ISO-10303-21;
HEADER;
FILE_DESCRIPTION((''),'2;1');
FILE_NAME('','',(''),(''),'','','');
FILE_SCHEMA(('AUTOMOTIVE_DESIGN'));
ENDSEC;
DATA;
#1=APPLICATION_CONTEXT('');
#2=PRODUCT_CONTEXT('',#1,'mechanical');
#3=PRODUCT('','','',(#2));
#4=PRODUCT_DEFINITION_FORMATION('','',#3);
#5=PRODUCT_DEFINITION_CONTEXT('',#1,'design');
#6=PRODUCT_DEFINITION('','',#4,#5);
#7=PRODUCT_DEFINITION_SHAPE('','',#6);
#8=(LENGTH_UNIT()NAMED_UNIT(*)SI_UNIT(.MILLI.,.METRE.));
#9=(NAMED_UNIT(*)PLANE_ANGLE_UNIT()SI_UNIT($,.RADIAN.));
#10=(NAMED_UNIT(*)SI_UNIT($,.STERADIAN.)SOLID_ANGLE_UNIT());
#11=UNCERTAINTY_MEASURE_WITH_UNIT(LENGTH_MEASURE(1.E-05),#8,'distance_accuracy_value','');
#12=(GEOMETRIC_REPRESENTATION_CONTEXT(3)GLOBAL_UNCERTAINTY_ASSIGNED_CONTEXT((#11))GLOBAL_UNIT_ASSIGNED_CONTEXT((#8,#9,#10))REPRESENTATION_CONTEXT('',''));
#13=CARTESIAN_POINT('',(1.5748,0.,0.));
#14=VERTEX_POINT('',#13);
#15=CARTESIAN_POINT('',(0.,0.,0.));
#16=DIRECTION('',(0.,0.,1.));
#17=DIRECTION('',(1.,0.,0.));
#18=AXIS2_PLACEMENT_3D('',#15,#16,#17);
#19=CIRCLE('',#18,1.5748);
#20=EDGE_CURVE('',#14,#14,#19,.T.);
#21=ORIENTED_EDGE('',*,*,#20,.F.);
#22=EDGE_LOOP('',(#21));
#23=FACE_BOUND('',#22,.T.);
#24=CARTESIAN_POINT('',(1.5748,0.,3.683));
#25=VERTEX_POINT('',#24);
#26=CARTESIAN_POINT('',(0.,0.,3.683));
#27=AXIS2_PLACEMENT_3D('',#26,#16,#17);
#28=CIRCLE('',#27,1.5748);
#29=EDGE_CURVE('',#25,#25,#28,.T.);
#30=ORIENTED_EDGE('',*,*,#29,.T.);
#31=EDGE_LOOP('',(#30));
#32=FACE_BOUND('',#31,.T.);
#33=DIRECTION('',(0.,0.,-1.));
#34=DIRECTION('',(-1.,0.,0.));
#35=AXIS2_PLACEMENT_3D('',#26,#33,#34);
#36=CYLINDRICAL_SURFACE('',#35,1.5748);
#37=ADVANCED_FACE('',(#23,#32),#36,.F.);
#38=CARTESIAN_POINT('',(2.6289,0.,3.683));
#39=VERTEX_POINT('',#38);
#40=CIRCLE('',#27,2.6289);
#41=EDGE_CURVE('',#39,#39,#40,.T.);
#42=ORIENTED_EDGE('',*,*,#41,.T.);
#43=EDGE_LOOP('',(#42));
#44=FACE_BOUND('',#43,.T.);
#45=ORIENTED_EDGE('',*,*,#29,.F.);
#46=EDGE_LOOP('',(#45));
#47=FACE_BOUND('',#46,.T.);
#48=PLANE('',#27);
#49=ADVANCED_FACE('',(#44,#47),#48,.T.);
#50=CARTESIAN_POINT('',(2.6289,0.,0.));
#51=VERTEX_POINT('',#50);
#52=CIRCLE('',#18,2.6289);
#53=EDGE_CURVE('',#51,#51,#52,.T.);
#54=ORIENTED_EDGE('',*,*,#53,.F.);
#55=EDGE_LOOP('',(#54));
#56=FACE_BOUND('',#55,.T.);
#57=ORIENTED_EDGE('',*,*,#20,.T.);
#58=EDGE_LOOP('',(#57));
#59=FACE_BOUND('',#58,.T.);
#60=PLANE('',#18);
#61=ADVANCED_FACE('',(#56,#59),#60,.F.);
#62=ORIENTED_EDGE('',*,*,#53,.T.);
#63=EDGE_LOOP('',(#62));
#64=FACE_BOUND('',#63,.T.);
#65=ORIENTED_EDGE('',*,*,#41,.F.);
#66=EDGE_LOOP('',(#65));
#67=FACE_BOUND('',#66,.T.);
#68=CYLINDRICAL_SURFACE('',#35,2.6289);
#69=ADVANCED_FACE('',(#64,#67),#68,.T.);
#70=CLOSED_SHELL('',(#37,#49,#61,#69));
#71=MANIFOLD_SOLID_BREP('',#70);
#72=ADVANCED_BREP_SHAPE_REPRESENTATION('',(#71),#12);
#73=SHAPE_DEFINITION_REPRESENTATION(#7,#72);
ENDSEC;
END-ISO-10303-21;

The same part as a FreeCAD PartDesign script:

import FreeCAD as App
import Part
import Sketcher
Q = App.Units.Quantity

doc = App.newDocument("Part")
body = doc.addObject("PartDesign::Body", "Body")

# Sketch on XY plane
sketch1 = body.newObject("Sketcher::SketchObject", "Sketch")
sketch1.AttachmentSupport = (doc.getObject("XY_Plane"), [""])
sketch1.MapMode = "FlatFace"
sketch1.addGeometry(Part.Circle(App.Vector(0, 0, 0), App.Vector(0, 0, 1), 2.6289), False)
sketch1.addGeometry(Part.Circle(App.Vector(0, 0, 0), App.Vector(0, 0, 1), 1.5748), False)
sketch1.addConstraint(Sketcher.Constraint("Coincident", 0, 3, -1, 1))
sketch1.addConstraint(Sketcher.Constraint("Coincident", 1, 3, -1, 1))
sketch1.addConstraint(Sketcher.Constraint("Diameter", 0, Q("0.207 in")))
sketch1.addConstraint(Sketcher.Constraint("Diameter", 1, Q("0.124 in")))
pad1 = body.newObject("PartDesign::Pad", "Pad")
pad1.Profile = sketch1
pad1.Length = Q("0.145 in")

doc.recompute()
